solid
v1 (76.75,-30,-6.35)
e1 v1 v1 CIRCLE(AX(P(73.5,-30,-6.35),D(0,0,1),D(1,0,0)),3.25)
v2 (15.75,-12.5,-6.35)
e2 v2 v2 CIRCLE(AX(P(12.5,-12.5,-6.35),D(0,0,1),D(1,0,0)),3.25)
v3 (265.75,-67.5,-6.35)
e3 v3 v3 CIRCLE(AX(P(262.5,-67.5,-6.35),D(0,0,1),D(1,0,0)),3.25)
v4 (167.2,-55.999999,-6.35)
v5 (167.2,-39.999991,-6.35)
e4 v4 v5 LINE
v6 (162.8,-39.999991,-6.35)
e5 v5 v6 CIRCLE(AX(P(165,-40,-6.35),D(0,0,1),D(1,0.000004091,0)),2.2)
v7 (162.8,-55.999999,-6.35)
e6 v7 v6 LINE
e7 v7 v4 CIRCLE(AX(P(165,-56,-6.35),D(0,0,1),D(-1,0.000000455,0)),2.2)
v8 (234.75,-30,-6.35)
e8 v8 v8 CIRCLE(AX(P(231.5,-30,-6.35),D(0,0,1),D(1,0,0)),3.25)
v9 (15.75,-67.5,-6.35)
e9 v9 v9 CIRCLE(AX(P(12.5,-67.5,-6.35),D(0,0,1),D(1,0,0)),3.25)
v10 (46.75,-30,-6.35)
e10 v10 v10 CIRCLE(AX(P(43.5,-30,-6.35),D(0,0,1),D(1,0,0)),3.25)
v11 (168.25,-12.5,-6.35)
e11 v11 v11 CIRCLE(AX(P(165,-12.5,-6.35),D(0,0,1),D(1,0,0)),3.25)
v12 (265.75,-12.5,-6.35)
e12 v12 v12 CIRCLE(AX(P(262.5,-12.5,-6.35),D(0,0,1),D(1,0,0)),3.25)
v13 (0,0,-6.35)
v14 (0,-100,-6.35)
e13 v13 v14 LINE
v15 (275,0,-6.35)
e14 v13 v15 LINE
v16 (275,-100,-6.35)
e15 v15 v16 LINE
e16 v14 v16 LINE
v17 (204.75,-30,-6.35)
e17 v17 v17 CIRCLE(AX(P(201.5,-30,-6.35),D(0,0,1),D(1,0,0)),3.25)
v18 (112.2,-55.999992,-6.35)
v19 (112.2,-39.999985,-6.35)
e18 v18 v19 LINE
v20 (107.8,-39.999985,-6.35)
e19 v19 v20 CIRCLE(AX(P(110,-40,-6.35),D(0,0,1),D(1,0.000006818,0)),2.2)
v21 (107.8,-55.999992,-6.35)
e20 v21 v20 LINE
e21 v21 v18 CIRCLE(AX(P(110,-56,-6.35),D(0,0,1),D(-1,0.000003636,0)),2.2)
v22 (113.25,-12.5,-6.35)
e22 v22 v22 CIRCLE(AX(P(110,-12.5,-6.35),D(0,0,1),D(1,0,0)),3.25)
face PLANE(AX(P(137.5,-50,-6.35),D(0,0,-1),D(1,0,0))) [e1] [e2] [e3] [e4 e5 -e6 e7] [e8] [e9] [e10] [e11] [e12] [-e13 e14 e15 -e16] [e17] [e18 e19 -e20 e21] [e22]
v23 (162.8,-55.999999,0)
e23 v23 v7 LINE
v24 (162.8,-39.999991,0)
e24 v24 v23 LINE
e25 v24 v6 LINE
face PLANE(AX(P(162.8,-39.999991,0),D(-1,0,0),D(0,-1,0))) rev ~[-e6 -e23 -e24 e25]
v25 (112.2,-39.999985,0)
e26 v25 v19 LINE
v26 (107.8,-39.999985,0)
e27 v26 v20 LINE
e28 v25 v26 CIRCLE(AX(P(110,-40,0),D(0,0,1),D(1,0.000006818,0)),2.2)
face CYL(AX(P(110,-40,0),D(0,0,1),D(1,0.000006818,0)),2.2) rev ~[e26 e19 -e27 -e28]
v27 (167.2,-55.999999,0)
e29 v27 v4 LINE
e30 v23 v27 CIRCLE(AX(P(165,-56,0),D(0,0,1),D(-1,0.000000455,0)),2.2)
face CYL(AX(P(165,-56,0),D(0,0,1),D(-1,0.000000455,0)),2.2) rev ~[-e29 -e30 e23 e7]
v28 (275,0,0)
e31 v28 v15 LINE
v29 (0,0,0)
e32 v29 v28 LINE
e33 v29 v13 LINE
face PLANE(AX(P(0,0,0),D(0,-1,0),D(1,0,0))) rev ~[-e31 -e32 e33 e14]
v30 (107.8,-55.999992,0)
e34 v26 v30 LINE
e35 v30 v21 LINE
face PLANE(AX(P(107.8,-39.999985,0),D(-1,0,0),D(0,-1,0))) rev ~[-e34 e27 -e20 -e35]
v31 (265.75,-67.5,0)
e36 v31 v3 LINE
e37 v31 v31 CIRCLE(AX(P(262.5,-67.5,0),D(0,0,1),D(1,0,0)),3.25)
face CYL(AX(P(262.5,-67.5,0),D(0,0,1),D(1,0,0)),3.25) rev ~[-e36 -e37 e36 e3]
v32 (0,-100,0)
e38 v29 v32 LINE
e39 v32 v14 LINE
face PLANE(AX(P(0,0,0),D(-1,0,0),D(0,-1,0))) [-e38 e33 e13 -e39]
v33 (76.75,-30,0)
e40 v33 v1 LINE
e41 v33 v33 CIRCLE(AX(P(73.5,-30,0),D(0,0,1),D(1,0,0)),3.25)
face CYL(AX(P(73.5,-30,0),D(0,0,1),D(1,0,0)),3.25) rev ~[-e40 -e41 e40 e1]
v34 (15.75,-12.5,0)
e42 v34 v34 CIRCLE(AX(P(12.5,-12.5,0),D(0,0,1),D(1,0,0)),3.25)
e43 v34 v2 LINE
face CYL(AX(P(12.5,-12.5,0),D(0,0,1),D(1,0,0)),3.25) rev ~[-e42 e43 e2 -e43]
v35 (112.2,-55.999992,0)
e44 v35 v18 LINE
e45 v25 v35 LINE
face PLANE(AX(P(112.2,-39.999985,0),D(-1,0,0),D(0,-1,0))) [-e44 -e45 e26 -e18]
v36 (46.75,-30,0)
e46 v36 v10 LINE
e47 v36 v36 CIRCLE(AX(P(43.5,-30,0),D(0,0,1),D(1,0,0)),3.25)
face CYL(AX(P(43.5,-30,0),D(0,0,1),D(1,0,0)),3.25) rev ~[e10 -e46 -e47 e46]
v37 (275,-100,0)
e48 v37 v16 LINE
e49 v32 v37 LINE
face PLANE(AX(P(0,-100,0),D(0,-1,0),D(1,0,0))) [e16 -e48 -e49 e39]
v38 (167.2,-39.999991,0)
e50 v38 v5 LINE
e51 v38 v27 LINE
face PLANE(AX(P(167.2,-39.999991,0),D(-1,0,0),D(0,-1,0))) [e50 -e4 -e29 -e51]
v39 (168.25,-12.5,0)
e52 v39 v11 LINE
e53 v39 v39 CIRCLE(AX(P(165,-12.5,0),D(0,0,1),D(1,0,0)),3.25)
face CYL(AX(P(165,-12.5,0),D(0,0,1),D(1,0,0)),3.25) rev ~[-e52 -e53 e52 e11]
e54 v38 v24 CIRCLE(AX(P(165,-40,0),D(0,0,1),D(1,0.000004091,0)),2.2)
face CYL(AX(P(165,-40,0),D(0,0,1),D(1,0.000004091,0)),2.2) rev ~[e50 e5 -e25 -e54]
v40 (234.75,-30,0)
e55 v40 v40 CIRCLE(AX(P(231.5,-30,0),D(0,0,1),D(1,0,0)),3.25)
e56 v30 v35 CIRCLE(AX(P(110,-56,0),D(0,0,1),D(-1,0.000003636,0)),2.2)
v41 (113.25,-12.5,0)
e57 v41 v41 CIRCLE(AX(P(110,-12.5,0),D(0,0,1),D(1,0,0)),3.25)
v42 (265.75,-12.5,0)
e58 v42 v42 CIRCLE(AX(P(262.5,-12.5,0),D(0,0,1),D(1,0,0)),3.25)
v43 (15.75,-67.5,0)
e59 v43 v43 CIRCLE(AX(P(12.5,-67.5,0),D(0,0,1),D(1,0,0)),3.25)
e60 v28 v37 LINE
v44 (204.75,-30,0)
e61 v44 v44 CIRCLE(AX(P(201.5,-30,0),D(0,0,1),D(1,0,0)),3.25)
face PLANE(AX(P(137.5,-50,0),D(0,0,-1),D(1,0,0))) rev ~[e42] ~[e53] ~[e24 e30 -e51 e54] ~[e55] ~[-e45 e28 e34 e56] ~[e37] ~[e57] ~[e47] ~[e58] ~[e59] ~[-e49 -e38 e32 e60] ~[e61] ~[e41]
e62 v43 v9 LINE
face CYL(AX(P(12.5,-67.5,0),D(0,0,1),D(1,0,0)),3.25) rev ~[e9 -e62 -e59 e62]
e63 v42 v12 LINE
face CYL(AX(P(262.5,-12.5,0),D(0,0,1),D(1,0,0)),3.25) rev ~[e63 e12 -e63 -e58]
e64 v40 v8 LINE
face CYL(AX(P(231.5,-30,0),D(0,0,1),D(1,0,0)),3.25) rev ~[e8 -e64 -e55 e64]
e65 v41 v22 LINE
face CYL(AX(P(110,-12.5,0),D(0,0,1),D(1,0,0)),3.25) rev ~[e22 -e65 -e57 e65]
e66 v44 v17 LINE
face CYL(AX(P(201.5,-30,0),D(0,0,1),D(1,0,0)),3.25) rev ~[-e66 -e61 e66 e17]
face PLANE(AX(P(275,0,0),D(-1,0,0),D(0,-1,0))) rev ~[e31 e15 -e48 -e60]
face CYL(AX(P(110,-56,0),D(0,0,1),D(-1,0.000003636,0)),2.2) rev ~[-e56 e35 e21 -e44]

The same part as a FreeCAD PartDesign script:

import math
import FreeCAD as App
import Part
import Sketcher
Q = App.Units.Quantity


def add_polygon(sketch, points):
    """Adds a closed chain of lines whose ends are joined by coincident constraints."""
    first, n = sketch.GeometryCount, len(points)
    for a, b in zip(points, points[1:] + points[:1]):
        sketch.addGeometry(Part.LineSegment(App.Vector(*a, 0), App.Vector(*b, 0)), False)
    for i in range(n):
        sketch.addConstraint(Sketcher.Constraint("Coincident", first + i, 2, first + (i + 1) % n, 1))

doc = App.newDocument("Part")
params = doc.addObject("Spreadsheet::Sheet", "Params")
for row, (alias, value) in enumerate([
    ("sketch1_width", "275 mm"),
    ("sketch1_height", "100 mm"),
    ("pad1_length", "6.35 mm"),
    ("sketch2_diameter", "6.5 mm"),
    ("sketch3_diameter", "6.5 mm"),
    ("sketch4_radius", "2.2 mm"),
    ("sketch5_diameter", "6.5 mm"),
], start=1):
    params.set(f"A{row}", alias)
    params.set(f"B{row}", "=" + value)
    params.setAlias(f"B{row}", alias)

body = doc.addObject("PartDesign::Body", "Body")

sketch1 = body.newObject("Sketcher::SketchObject", "Sketch")
sketch1.AttachmentSupport = (doc.getObject("XY_Plane"), [""])
sketch1.MapMode = "FlatFace"
add_polygon(sketch1, [(0, -100), (0, 0), (275, 0), (275, -100)])
sketch1.addConstraint(Sketcher.Constraint("Vertical", 0))
sketch1.addConstraint(Sketcher.Constraint("Horizontal", 1))
sketch1.addConstraint(Sketcher.Constraint("Vertical", 2))
sketch1.addConstraint(Sketcher.Constraint("Horizontal", 3))
sketch1.addConstraint(Sketcher.Constraint("Coincident", 0, 2, -1, 1))
sketch1.addConstraint(Sketcher.Constraint("DistanceX", 1, 1, 1, 2, Q("275 mm")))
sketch1.addConstraint(Sketcher.Constraint("DistanceY", 0, 1, 0, 2, Q("100 mm")))
sketch1.setExpression("Constraints[9]", "Params.sketch1_width")
sketch1.setExpression("Constraints[10]", "Params.sketch1_height")
pad1 = body.newObject("PartDesign::Pad", "Pad")
pad1.Profile = sketch1
pad1.setExpression("Length", "Params.pad1_length")
pad1.Reversed = True

sketch2 = body.newObject("Sketcher::SketchObject", "Sketch001")
sketch2.AttachmentSupport = (doc.getObject("XY_Plane"), [""])
sketch2.MapMode = "FlatFace"
sketch2.addGeometry(Part.Circle(App.Vector(110, -12.5, 0), App.Vector(0, 0, 1), 3.2), False)
sketch2.addGeometry(Part.Circle(App.Vector(165, -12.5, 0), App.Vector(0, 0, 1), 3.2), False)
sketch2.addConstraint(Sketcher.Constraint("Equal", 0, 1))
sketch2.addConstraint(Sketcher.Constraint("Horizontal", 0, 3, 1, 3))
sketch2.addConstraint(Sketcher.Constraint("Diameter", 0, Q("6.5 mm")))
sketch2.addConstraint(Sketcher.Constraint("DistanceX", -1, 1, 0, 3, Q("110 mm")))
sketch2.addConstraint(Sketcher.Constraint("DistanceX", -1, 1, 1, 3, Q("165 mm")))
sketch2.addConstraint(Sketcher.Constraint("DistanceY", 0, 3, -1, 1, Q("12.5 mm")))
sketch2.setExpression("Constraints[2]", "Params.sketch2_diameter")
pocket1 = body.newObject("PartDesign::Pocket", "Pocket")
pocket1.Profile = sketch2
pocket1.Type = "ThroughAll"

sketch3 = body.newObject("Sketcher::SketchObject", "Sketch002")
sketch3.AttachmentSupport = (doc.getObject("XY_Plane"), [""])
sketch3.MapMode = "FlatFace"
sketch3.addGeometry(Part.Circle(App.Vector(12.5, -12.5, 0), App.Vector(0, 0, 1), 3.2), False)
sketch3.addGeometry(Part.Circle(App.Vector(12.5, -67.5, 0), App.Vector(0, 0, 1), 3.2), False)
sketch3.addGeometry(Part.Circle(App.Vector(262.5, -12.5, 0), App.Vector(0, 0, 1), 3.2), False)
sketch3.addGeometry(Part.Circle(App.Vector(262.5, -67.5, 0), App.Vector(0, 0, 1), 3.2), False)
sketch3.addConstraint(Sketcher.Constraint("Equal", 0, 1))
sketch3.addConstraint(Sketcher.Constraint("Equal", 1, 2))
sketch3.addConstraint(Sketcher.Constraint("Equal", 2, 3))
sketch3.addConstraint(Sketcher.Constraint("Horizontal", 0, 3, 2, 3))
sketch3.addConstraint(Sketcher.Constraint("Horizontal", 1, 3, 3, 3))
sketch3.addConstraint(Sketcher.Constraint("Vertical", 0, 3, 1, 3))
sketch3.addConstraint(Sketcher.Constraint("Vertical", 2, 3, 3, 3))
sketch3.addConstraint(Sketcher.Constraint("Diameter", 0, Q("6.5 mm")))
sketch3.addConstraint(Sketcher.Constraint("DistanceY", 1, 3, 0, 3, Q("55 mm")))
sketch3.addConstraint(Sketcher.Constraint("DistanceX", 0, 3, 2, 3, Q("250 mm")))
sketch3.addConstraint(Sketcher.Constraint("DistanceX", -1, 1, 0, 3, Q("12.5 mm")))
sketch3.addConstraint(Sketcher.Constraint("DistanceY", 0, 3, -1, 1, Q("12.5 mm")))
sketch3.setExpression("Constraints[7]", "Params.sketch3_diameter")
pocket2 = body.newObject("PartDesign::Pocket", "Pocket001")
pocket2.Profile = sketch3
pocket2.Type = "ThroughAll"

sketch4 = body.newObject("Sketcher::SketchObject", "Sketch003")
sketch4.AttachmentSupport = (doc.getObject("XY_Plane"), [""])
sketch4.MapMode = "FlatFace"
sketch4.addGeometry(Part.ArcOfCircle(Part.Circle(App.Vector(110, -40, 0), App.Vector(0, 0, 1), 2.2), math.radians(0), math.radians(180)), False)
sketch4.addGeometry(Part.LineSegment(App.Vector(107.8, -40, 0), App.Vector(107.8, -56, 0)), False)
sketch4.addGeometry(Part.ArcOfCircle(Part.Circle(App.Vector(110, -56, 0), App.Vector(0, 0, 1), 2.2), math.radians(180), math.radians(360)), False)
sketch4.addGeometry(Part.LineSegment(App.Vector(112.2, -56, 0), App.Vector(112.2, -40, 0)), False)
sketch4.addGeometry(Part.ArcOfCircle(Part.Circle(App.Vector(165, -40, 0), App.Vector(0, 0, 1), 2.2), math.radians(0), math.radians(180)), False)
sketch4.addGeometry(Part.LineSegment(App.Vector(162.8, -40, 0), App.Vector(162.8, -56, 0)), False)
sketch4.addGeometry(Part.ArcOfCircle(Part.Circle(App.Vector(165, -56, 0), App.Vector(0, 0, 1), 2.2), math.radians(180), math.radians(360)), False)
sketch4.addGeometry(Part.LineSegment(App.Vector(167.2, -56, 0), App.Vector(167.2, -40, 0)), False)
sketch4.addConstraint(Sketcher.Constraint("Coincident", 0, 2, 1, 1))
sketch4.addConstraint(Sketcher.Constraint("Coincident", 1, 2, 2, 1))
sketch4.addConstraint(Sketcher.Constraint("Coincident", 2, 2, 3, 1))
sketch4.addConstraint(Sketcher.Constraint("Coincident", 3, 2, 0, 1))
sketch4.addConstraint(Sketcher.Constraint("Coincident", 4, 2, 5, 1))
sketch4.addConstraint(Sketcher.Constraint("Tangent", 5, 2, 6, 1))
sketch4.addConstraint(Sketcher.Constraint("Tangent", 6, 2, 7, 1))
sketch4.addConstraint(Sketcher.Constraint("Coincident", 7, 2, 4, 1))
sketch4.addConstraint(Sketcher.Constraint("Vertical", 1))
sketch4.addConstraint(Sketcher.Constraint("Vertical", 3))
sketch4.addConstraint(Sketcher.Constraint("Vertical", 5))
sketch4.addConstraint(Sketcher.Constraint("Vertical", 7))
sketch4.addConstraint(Sketcher.Constraint("Equal", 2, 4))
sketch4.addConstraint(Sketcher.Constraint("Horizontal", 0, 3, 4, 3))
sketch4.addConstraint(Sketcher.Constraint("Horizontal", 2, 3, 6, 3))
sketch4.addConstraint(Sketcher.Constraint("Horizontal", 1, 2, 2, 2))
sketch4.addConstraint(Sketcher.Constraint("Horizontal", 0, 2, 3, 2))
sketch4.addConstraint(Sketcher.Constraint("Horizontal", 4, 2, 7, 2))
sketch4.addConstraint(Sketcher.Constraint("Equal", 3, 5))
sketch4.addConstraint(Sketcher.Constraint("Radius", 0, Q("2.2 mm")))
sketch4.addConstraint(Sketcher.Constraint("DistanceX", -1, 1, 0, 3, Q("110 mm")))
sketch4.addConstraint(Sketcher.Constraint("DistanceY", 0, 3, -1, 1, Q("40 mm")))
sketch4.addConstraint(Sketcher.Constraint("DistanceY", 2, 3, -1, 1, Q("56 mm")))
sketch4.addConstraint(Sketcher.Constraint("DistanceX", -1, 1, 4, 3, Q("165 mm")))
sketch4.addConstraint(Sketcher.Constraint("DistanceY", 2, 2, 4, 2, Q("16.000001 mm")))
sketch4.addConstraint(Sketcher.Constraint("DistanceY", 5, 2, 5, 1, Q("16.000008 mm")))
sketch4.setExpression("Constraints[19]", "Params.sketch4_radius")
pocket3 = body.newObject("PartDesign::Pocket", "Pocket002")
pocket3.Profile = sketch4
pocket3.Type = "ThroughAll"

sketch5 = body.newObject("Sketcher::SketchObject", "Sketch004")
sketch5.AttachmentSupport = (doc.getObject("XY_Plane"), [""])
sketch5.MapMode = "FlatFace"
sketch5.addGeometry(Part.Circle(App.Vector(43.5, -30, 0), App.Vector(0, 0, 1), 3.2), False)
sketch5.addGeometry(Part.Circle(App.Vector(73.5, -30, 0), App.Vector(0, 0, 1), 3.2), False)
sketch5.addGeometry(Part.Circle(App.Vector(201.5, -30, 0), App.Vector(0, 0, 1), 3.2), False)
sketch5.addGeometry(Part.Circle(App.Vector(231.5, -30, 0), App.Vector(0, 0, 1), 3.2), False)
sketch5.addConstraint(Sketcher.Constraint("Equal", 0, 1))
sketch5.addConstraint(Sketcher.Constraint("Equal", 1, 2))
sketch5.addConstraint(Sketcher.Constraint("Equal", 2, 3))
sketch5.addConstraint(Sketcher.Constraint("Horizontal", 0, 3, 1, 3))
sketch5.addConstraint(Sketcher.Constraint("Horizontal", 1, 3, 2, 3))
sketch5.addConstraint(Sketcher.Constraint("Horizontal", 2, 3, 3, 3))
sketch5.addConstraint(Sketcher.Constraint("Diameter", 0, Q("6.5 mm")))
sketch5.addConstraint(Sketcher.Constraint("DistanceY", 0, 3, -1, 1, Q("30 mm")))
sketch5.addConstraint(Sketcher.Constraint("DistanceX", 0, 3, 1, 3, Q("30 mm")))
sketch5.addConstraint(Sketcher.Constraint("DistanceX", 1, 3, 2, 3, Q("128 mm")))
sketch5.addConstraint(Sketcher.Constraint("DistanceX", 2, 3, 3, 3, Q("30 mm")))
sketch5.addConstraint(Sketcher.Constraint("DistanceX", -1, 1, 0, 3, Q("43.5 mm")))
sketch5.setExpression("Constraints[6]", "Params.sketch5_diameter")
pocket4 = body.newObject("PartDesign::Pocket", "Pocket003")
pocket4.Profile = sketch5
pocket4.Type = "ThroughAll"

doc.recompute()
